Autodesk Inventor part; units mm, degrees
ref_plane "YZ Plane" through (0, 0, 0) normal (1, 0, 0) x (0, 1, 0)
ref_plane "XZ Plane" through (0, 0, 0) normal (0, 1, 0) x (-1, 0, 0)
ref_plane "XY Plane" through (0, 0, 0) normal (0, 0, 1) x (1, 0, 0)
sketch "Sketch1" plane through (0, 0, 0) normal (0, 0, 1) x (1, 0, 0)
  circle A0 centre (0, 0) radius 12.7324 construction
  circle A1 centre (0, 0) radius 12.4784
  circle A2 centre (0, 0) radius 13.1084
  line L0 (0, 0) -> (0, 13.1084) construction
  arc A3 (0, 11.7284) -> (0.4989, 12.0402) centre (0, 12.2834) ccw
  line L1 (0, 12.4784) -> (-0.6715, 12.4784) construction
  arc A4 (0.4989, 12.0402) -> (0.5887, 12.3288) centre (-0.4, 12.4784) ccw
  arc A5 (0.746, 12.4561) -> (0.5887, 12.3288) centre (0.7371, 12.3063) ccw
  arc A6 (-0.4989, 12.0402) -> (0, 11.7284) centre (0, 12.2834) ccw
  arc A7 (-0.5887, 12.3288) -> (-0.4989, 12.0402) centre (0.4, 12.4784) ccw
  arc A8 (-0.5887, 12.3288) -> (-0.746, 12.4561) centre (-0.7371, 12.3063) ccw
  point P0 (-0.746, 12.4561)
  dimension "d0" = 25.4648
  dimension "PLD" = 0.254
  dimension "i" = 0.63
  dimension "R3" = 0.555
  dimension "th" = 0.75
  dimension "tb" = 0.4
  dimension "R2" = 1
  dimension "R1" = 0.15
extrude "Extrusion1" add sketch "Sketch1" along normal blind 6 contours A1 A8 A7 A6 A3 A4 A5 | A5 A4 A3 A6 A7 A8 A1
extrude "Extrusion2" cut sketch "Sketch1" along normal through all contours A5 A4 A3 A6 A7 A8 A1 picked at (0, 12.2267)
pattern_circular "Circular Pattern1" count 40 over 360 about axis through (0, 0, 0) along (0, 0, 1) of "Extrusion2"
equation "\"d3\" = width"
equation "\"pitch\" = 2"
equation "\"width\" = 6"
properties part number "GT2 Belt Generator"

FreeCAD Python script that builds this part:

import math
import FreeCAD as App
import Part
import Sketcher

doc = App.newDocument("Part")
body = doc.addObject("PartDesign::Body", "Body")

# Sketch on XY plane
sketch1 = body.newObject("Sketcher::SketchObject", "Sketch")
sketch1.AttachmentSupport = (doc.getObject("XY_Plane"), [""])
sketch1.MapMode = "FlatFace"
sketch1.addGeometry(Part.Circle(App.Vector(0, 0, 0), App.Vector(0, 0, 1), 12), False)
sketch1.addConstraint([
    Sketcher.Constraint("Coincident", 0, 3, -1, 1),
    Sketcher.Constraint("Diameter", 0, 24.9568),
])
pad1 = body.newObject("PartDesign::Pad", "Pad")
pad1.Profile = sketch1
pad1.Length = 6

# Sketch on XY plane
sketch2 = body.newObject("Sketcher::SketchObject", "Sketch001")
sketch2.AttachmentSupport = (doc.getObject("XY_Plane"), [""])
sketch2.MapMode = "FlatFace"
sketch2.addGeometry([
    Part.ArcOfCircle(Part.Circle(App.Vector(0.74, 12.31, 0), App.Vector(0, 0, 1), 0.15), math.radians(87), math.radians(171)),  # 0
    Part.ArcOfCircle(Part.Circle(App.Vector(0, 0, 0), App.Vector(0, 0, 1), 12.48), math.radians(86.57), math.radians(93.43)),  # 1
    Part.ArcOfCircle(Part.Circle(App.Vector(-0.74, 12.31, 0), App.Vector(0, 0, 1), 0.15), math.radians(9), math.radians(93)),  # 2
    Part.ArcOfCircle(Part.Circle(App.Vector(0.4, 12.48, 0), App.Vector(0, 0, 1), 1), math.radians(-171.38), math.radians(-154.05)),  # 3
    Part.ArcOfCircle(Part.Circle(App.Vector(0, 12.28, 0), App.Vector(0, 0, 1), 0.55), math.radians(-154), math.radians(-90)),  # 4
    Part.ArcOfCircle(Part.Circle(App.Vector(0, 12.28, 0), App.Vector(0, 0, 1), 0.56), math.radians(-90), math.radians(-26)),  # 5
    Part.ArcOfCircle(Part.Circle(App.Vector(-0.4, 12.48, 0), App.Vector(0, 0, 1), 1), math.radians(-26), math.radians(-8.57)),  # 6
], False)
sketch2.addConstraint([
    Sketcher.Constraint("Tangent", 0, 1, 1, 1),
    Sketcher.Constraint("Tangent", 1, 2, 2, 2),
    Sketcher.Constraint("Tangent", 2, 1, 3, 1),
    Sketcher.Constraint("Coincident", 3, 2, 4, 1),
    Sketcher.Constraint("Tangent", 4, 2, 5, 1),
    Sketcher.Constraint("Tangent", 5, 2, 6, 1),
    Sketcher.Constraint("Coincident", 6, 2, 0, 2),
    Sketcher.Constraint("Coincident", 1, 3, -1, 1),
    Sketcher.Constraint("Equal", 0, 2),
    Sketcher.Constraint("Equal", 4, 5),
    Sketcher.Constraint("Symmetric", 3, 2, 5, 2, -2),
    Sketcher.Constraint("Symmetric", 2, 1, 6, 2, -2),
    Sketcher.Constraint("PointOnObject", 4, 2, -2),
    Sketcher.Constraint("Radius", 0, 0.15),
    Sketcher.Constraint("Radius", 4, 0.555),
    Sketcher.Constraint("Radius", 1, 12.4784),
    Sketcher.Constraint("Radius", 3, 1.0028),
    Sketcher.Constraint("Radius", 6, 0.9971),
    Sketcher.Constraint("DistanceY", 6, 2, 3, 3, 0.1503),
    Sketcher.Constraint("DistanceX", -1, 1, 0, 3, 0.737),
])
pocket1 = body.newObject("PartDesign::Pocket", "Pocket")
pocket1.Profile = sketch2
pocket1.Type = "ThroughAll"
pocket1.Reversed = True
doc.recompute()

polarpattern = body.newObject("PartDesign::PolarPattern", "PolarPattern")
polarpattern.Originals = [pocket1]
polarpattern.Axis = (doc.getObject("Z_Axis"), [""])
polarpattern.Angle = 360
polarpattern.Occurrences = 40
body.Tip = polarpattern

doc.recompute()
